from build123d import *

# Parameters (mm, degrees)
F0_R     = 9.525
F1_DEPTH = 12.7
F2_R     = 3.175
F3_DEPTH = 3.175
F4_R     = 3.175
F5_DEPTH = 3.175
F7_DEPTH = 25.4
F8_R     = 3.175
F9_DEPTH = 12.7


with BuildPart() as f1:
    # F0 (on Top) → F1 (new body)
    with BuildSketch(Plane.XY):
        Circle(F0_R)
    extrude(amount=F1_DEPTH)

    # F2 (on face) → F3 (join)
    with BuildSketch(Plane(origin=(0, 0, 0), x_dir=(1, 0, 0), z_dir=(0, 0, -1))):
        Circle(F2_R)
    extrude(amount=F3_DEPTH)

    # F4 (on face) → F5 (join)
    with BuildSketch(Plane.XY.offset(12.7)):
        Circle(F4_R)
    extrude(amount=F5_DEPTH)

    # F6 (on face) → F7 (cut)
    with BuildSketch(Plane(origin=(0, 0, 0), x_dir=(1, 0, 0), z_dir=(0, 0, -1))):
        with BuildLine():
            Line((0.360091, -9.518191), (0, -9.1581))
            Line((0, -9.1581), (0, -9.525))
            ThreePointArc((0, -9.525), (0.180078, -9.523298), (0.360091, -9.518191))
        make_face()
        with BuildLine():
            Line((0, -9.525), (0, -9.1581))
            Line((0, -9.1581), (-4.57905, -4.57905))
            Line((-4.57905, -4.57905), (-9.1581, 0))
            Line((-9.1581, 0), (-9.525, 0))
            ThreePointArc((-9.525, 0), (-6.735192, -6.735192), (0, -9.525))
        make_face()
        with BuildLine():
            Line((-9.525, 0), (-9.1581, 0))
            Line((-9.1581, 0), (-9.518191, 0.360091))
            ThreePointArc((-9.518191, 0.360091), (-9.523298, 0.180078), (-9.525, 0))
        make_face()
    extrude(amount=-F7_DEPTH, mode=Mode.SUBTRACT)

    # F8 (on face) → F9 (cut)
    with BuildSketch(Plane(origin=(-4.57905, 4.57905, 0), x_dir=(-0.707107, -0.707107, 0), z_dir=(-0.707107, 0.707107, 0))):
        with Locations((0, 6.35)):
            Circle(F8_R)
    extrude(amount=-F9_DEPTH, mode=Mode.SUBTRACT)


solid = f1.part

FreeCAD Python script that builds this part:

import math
import FreeCAD as App
import Part
import Sketcher

V = App.Vector
Q = App.Units.Quantity

doc = App.newDocument("Part")
body = doc.addObject("PartDesign::Body", "Body")

# Sketch on XY plane
sketch1 = body.newObject("Sketcher::SketchObject", "Sketch")
sketch1.AttachmentSupport = (doc.getObject("XY_Plane"), [""])
sketch1.MapMode = "FlatFace"
sketch1.addGeometry(Part.Circle(V(0, 0, 0), V(0, 0, 1), 10), False)
sketch1.addConstraint(Sketcher.Constraint("Coincident", 0, 3, -1, 1))
sketch1.addConstraint(Sketcher.Constraint("Diameter", 0, Q("0.75 in")))
pad1 = body.newObject("PartDesign::Pad", "Pad")
pad1.Profile = sketch1
pad1.Length = Q("0.5 in")

# Sketch on XY plane
sketch2 = body.newObject("Sketcher::SketchObject", "Sketch001")
sketch2.AttachmentSupport = (doc.getObject("XY_Plane"), [""])
sketch2.MapMode = "FlatFace"
sketch2.addGeometry(Part.Circle(V(0, 0, 0), V(0, 0, 1), 3.2), False)
sketch2.addConstraint(Sketcher.Constraint("Coincident", 0, 3, -1, 1))
sketch2.addConstraint(Sketcher.Constraint("Diameter", 0, Q("0.25 in")))
pad2 = body.newObject("PartDesign::Pad", "Pad001")
pad2.Profile = sketch2
pad2.Length = Q("0.125 in")
pad2.Reversed = True

# Sketch on XY plane
sketch3 = body.newObject("Sketcher::SketchObject", "Sketch002")
sketch3.AttachmentSupport = (doc.getObject("XY_Plane"), [""])
sketch3.MapMode = "FlatFace"
sketch3.AttachmentOffset = App.Placement(V(0, 0, 0.5 * 25.4), App.Rotation())
sketch3.addGeometry(Part.Circle(V(0, 0, 0), V(0, 0, 1), 3.2), False)
sketch3.addConstraint(Sketcher.Constraint("Coincident", 0, 3, -1, 1))
sketch3.addConstraint(Sketcher.Constraint("Diameter", 0, Q("0.25 in")))
pad3 = body.newObject("PartDesign::Pad", "Pad002")
pad3.Profile = sketch3
pad3.Length = Q("0.125 in")

# Sketch on XY plane
sketch4 = body.newObject("Sketcher::SketchObject", "Sketch003")
sketch4.AttachmentSupport = (doc.getObject("XY_Plane"), [""])
sketch4.MapMode = "FlatFace"
sketch4.addGeometry(Part.LineSegment(V(0.36, 9.52, 0), V(-9.52, -0.36, 0)), False)
sketch4.addGeometry(Part.ArcOfCircle(Part.Circle(V(0, 0, 0), V(0, 0, 1), 9.52), math.radians(180), math.radians(182.17)), False)
sketch4.addGeometry(Part.ArcOfCircle(Part.Circle(V(0, 0, 0), V(0, 0, 1), 9.53), math.radians(90), math.radians(180)), False)
sketch4.addGeometry(Part.ArcOfCircle(Part.Circle(V(0, 0, 0), V(0, 0, 1), 9.52), math.radians(87.83), math.radians(90)), False)
sketch4.addConstraint(Sketcher.Constraint("Coincident", 0, 2, 1, 2))
sketch4.addConstraint(Sketcher.Constraint("Coincident", 1, 1, 2, 2))
sketch4.addConstraint(Sketcher.Constraint("Coincident", 2, 1, 3, 2))
sketch4.addConstraint(Sketcher.Constraint("Coincident", 3, 1, 0, 1))
sketch4.addConstraint(Sketcher.Constraint("Coincident", 2, 3, -1, 1))
sketch4.addConstraint(Sketcher.Constraint("Equal", 1, 3))
sketch4.addConstraint(Sketcher.Constraint("PointOnObject", 1, 1, -1))
sketch4.addConstraint(Sketcher.Constraint("PointOnObject", 2, 1, -2))
sketch4.addConstraint(Sketcher.Constraint("Angle", 0, Q("-135 deg")))
sketch4.addConstraint(Sketcher.Constraint("Radius", 2, Q("0.375 in")))
sketch4.addConstraint(Sketcher.Constraint("Distance", 0, Q("0.55 in")))
sketch4.addConstraint(Sketcher.Constraint("Radius", 1, Q("9.52275 mm")))
sketch4.addConstraint(Sketcher.Constraint("DistanceX", 0, 2, -1, 1, Q("9.518191 mm")))
sketch4.addConstraint(Sketcher.Constraint("DistanceY", 0, 2, -1, 1, Q("0.360091 mm")))
pocket1 = body.newObject("PartDesign::Pocket", "Pocket")
pocket1.Profile = sketch4
pocket1.Length = Q("1 in")
pocket1.Reversed = True

# Sketch on an angled plane
sketch5 = body.newObject("Sketcher::SketchObject", "Sketch004")
sketch5.Placement = App.Placement(V(-4.57905, 4.57905, 0), App.Rotation(V(-0.707106781, -0.707106781, 0), V(0, 0, 0.999999999), V(-0.707106781, 0.707106781, 0), "ZXY"))
sketch5.addGeometry(Part.Circle(V(0, 6.3, 0), V(0, 0, 1), 3.2), False)
sketch5.addConstraint(Sketcher.Constraint("PointOnObject", 0, 3, -2))
sketch5.addConstraint(Sketcher.Constraint("Diameter", 0, Q("0.25 in")))
sketch5.addConstraint(Sketcher.Constraint("DistanceY", -1, 1, 0, 3, Q("0.25 in")))
pocket2 = body.newObject("PartDesign::Pocket", "Pocket001")
pocket2.Profile = sketch5
pocket2.Length = Q("0.5 in")

doc.recompute()
